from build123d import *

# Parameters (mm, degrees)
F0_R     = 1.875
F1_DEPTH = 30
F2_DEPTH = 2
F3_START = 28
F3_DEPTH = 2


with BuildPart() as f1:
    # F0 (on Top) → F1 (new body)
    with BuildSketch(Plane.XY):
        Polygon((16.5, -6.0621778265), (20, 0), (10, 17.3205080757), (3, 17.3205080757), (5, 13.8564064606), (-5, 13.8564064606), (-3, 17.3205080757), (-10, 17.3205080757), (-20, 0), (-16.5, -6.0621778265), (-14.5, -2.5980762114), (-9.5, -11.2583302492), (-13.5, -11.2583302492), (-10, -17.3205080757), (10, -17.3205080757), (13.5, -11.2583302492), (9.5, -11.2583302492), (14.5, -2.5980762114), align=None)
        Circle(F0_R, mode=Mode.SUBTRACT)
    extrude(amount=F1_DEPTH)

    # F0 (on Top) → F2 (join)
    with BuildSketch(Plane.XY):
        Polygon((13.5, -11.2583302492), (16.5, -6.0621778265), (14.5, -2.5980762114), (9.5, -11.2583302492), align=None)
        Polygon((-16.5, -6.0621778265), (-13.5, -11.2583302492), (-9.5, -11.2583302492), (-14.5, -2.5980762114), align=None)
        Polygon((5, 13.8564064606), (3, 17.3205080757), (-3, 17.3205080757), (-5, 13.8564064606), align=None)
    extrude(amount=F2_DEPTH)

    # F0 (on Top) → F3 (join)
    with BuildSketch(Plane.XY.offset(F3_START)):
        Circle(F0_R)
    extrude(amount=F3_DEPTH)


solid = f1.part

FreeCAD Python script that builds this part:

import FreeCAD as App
import Part
import Sketcher

V = App.Vector
Q = App.Units.Quantity

doc = App.newDocument("Part")
params = doc.addObject("Spreadsheet::Sheet", "Params")
for row, (alias, value) in enumerate([
    ("sketch1_diameter", "3.75 mm"),
    ("sketch1_width", "7 mm"),
    ("sketch1_width2", "10 mm"),
    ("sketch1_width3", "4 mm"),
    ("sketch1_length", "7 mm"),
    ("pad1_length", "30 mm"),
    ("sketch2_width", "4 mm"),
    ("sketch2_width2", "6 mm"),
    ("sketch2_length", "6 mm"),
    ("pad2_length", "2 mm"),
    ("sketch3_diameter", "3.75 mm"),
    ("pad3_length", "2 mm"),
], start=1):
    params.set(f"A{row}", alias)
    params.set(f"B{row}", "=" + value)
    params.setAlias(f"B{row}", alias)

body = doc.addObject("PartDesign::Body", "Body")

# Sketch on XY plane
sketch1 = doc.addObject("Sketcher::SketchObject", "Sketch")
body.addObject(sketch1)
sketch1.AttachmentSupport = (doc.XY_Plane, [""])
sketch1.MapMode = "FlatFace"
sketch1.addGeometry([
    Part.LineSegment(V(16.5, -6.1, 0), V(20, 0, 0)),  # 0
    Part.LineSegment(V(20, 0, 0), V(10, 17.3, 0)),  # 1
    Part.LineSegment(V(10, 17.3, 0), V(3, 17.3, 0)),  # 2
    Part.LineSegment(V(3, 17.3, 0), V(5, 13.9, 0)),  # 3
    Part.LineSegment(V(5, 13.9, 0), V(-5, 13.9, 0)),  # 4
    Part.LineSegment(V(-5, 13.9, 0), V(-3, 17.3, 0)),  # 5
    Part.LineSegment(V(-3, 17.3, 0), V(-10, 17.3, 0)),  # 6
    Part.LineSegment(V(-10, 17.3, 0), V(-20, 0, 0)),  # 7
    Part.LineSegment(V(-20, 0, 0), V(-16.5, -6.1, 0)),  # 8
    Part.LineSegment(V(-16.5, -6.1, 0), V(-14.5, -2.6, 0)),  # 9
    Part.LineSegment(V(-14.5, -2.6, 0), V(-9.5, -11.3, 0)),  # 10
    Part.LineSegment(V(-9.5, -11.3, 0), V(-13.5, -11.3, 0)),  # 11
    Part.LineSegment(V(-13.5, -11.3, 0), V(-10, -17.3, 0)),  # 12
    Part.LineSegment(V(-10, -17.3, 0), V(10, -17.3, 0)),  # 13
    Part.LineSegment(V(10, -17.3, 0), V(13.5, -11.3, 0)),  # 14
    Part.LineSegment(V(13.5, -11.3, 0), V(9.5, -11.3, 0)),  # 15
    Part.LineSegment(V(9.5, -11.3, 0), V(14.5, -2.6, 0)),  # 16
    Part.LineSegment(V(14.5, -2.6, 0), V(16.5, -6.1, 0)),  # 17
    Part.Circle(V(0, 0, 0), V(0, 0, 1), 1.9),  # 18
], False)
sketch1.addConstraint([
    Sketcher.Constraint("Coincident", 0, 2, 1, 1),
    Sketcher.Constraint("Coincident", 1, 2, 2, 1),
    Sketcher.Constraint("Coincident", 2, 2, 3, 1),
    Sketcher.Constraint("Coincident", 3, 2, 4, 1),
    Sketcher.Constraint("Coincident", 4, 2, 5, 1),
    Sketcher.Constraint("Coincident", 5, 2, 6, 1),
    Sketcher.Constraint("Coincident", 6, 2, 7, 1),
    Sketcher.Constraint("Coincident", 7, 2, 8, 1),
    Sketcher.Constraint("Coincident", 8, 2, 9, 1),
    Sketcher.Constraint("Coincident", 9, 2, 10, 1),
    Sketcher.Constraint("Coincident", 10, 2, 11, 1),
    Sketcher.Constraint("Coincident", 11, 2, 12, 1),
    Sketcher.Constraint("Coincident", 12, 2, 13, 1),
    Sketcher.Constraint("Coincident", 13, 2, 14, 1),
    Sketcher.Constraint("Coincident", 14, 2, 15, 1),
    Sketcher.Constraint("Coincident", 15, 2, 16, 1),
    Sketcher.Constraint("Coincident", 16, 2, 17, 1),
    Sketcher.Constraint("Coincident", 17, 2, 0, 1),
    Sketcher.Constraint("Horizontal", 2),
    Sketcher.Constraint("Horizontal", 4),
    Sketcher.Constraint("Horizontal", 6),
    Sketcher.Constraint("Horizontal", 11),
    Sketcher.Constraint("Horizontal", 13),
    Sketcher.Constraint("Horizontal", 15),
    Sketcher.Constraint("Coincident", 18, 3, -1, 1),
    Sketcher.Constraint("Symmetric", 0, 2, 7, 2, -1, 1),
    Sketcher.Constraint("Symmetric", 1, 2, 12, 2, -1, 1),
    Sketcher.Constraint("Symmetric", 6, 2, 13, 2, -1, 1),
    Sketcher.Constraint("Symmetric", 11, 2, 14, 2, -2),
    Sketcher.Constraint("Symmetric", 9, 2, 16, 2, -2),
    Sketcher.Constraint("Symmetric", 8, 2, 17, 2, -2),
    Sketcher.Constraint("PointOnObject", 0, 2, -1),
    Sketcher.Constraint("Parallel", 1, 3),
    Sketcher.Constraint("Parallel", 0, 5),
    Sketcher.Constraint("Parallel", 5, 7),
    Sketcher.Constraint("Parallel", 3, 8),
    Sketcher.Constraint("Parallel", 7, 9),
    Sketcher.Constraint("Parallel", 8, 10),
    Sketcher.Constraint("Parallel", 10, 12),
    Sketcher.Constraint("Parallel", 14, 16),
    Sketcher.Constraint("Equal", 2, 6),
    Sketcher.Constraint("Equal", 5, 9),
    Sketcher.Constraint("Equal", 8, 12),
    Sketcher.Constraint("Diameter", 18, Q("3.75 mm")),
    Sketcher.Constraint("DistanceX", 2, 2, 2, 1, Q("7 mm")),
    Sketcher.Constraint("DistanceX", 4, 2, 4, 1, Q("10 mm")),
    Sketcher.Constraint("DistanceX", 11, 2, 11, 1, Q("4 mm")),
    Sketcher.Constraint("Angle", 0, Q("60 deg")),
    Sketcher.Constraint("Distance", 0, Q("7 mm")),
    Sketcher.Constraint("Distance", 1, Q("20 mm")),
])
sketch1.setExpression("Constraints[43]", "Params.sketch1_diameter")
sketch1.setExpression("Constraints[44]", "Params.sketch1_width")
sketch1.setExpression("Constraints[45]", "Params.sketch1_width2")
sketch1.setExpression("Constraints[46]", "Params.sketch1_width3")
sketch1.setExpression("Constraints[48]", "Params.sketch1_length")
pad1 = doc.addObject("PartDesign::Pad", "Pad")
body.addObject(pad1)
pad1.Profile = sketch1
pad1.setExpression("Length", "Params.pad1_length")

# Sketch on XY plane
sketch2 = doc.addObject("Sketcher::SketchObject", "Sketch001")
body.addObject(sketch2)
sketch2.AttachmentSupport = (doc.XY_Plane, [""])
sketch2.MapMode = "FlatFace"
sketch2.addGeometry([
    Part.LineSegment(V(13.5, -11.3, 0), V(16.5, -6.1, 0)),  # 0
    Part.LineSegment(V(16.5, -6.1, 0), V(14.5, -2.6, 0)),  # 1
    Part.LineSegment(V(14.5, -2.6, 0), V(9.5, -11.3, 0)),  # 2
    Part.LineSegment(V(9.5, -11.3, 0), V(13.5, -11.3, 0)),  # 3
    Part.LineSegment(V(-16.5, -6.1, 0), V(-13.5, -11.3, 0)),  # 4
    Part.LineSegment(V(-13.5, -11.3, 0), V(-9.5, -11.3, 0)),  # 5
    Part.LineSegment(V(-9.5, -11.3, 0), V(-14.5, -2.6, 0)),  # 6
    Part.LineSegment(V(-14.5, -2.6, 0), V(-16.5, -6.1, 0)),  # 7
    Part.LineSegment(V(5, 13.9, 0), V(3, 17.3, 0)),  # 8
    Part.LineSegment(V(3, 17.3, 0), V(-3, 17.3, 0)),  # 9
    Part.LineSegment(V(-3, 17.3, 0), V(-5, 13.9, 0)),  # 10
    Part.LineSegment(V(-5, 13.9, 0), V(5, 13.9, 0)),  # 11
], False)
sketch2.addConstraint([
    Sketcher.Constraint("Coincident", 0, 2, 1, 1),
    Sketcher.Constraint("Coincident", 1, 2, 2, 1),
    Sketcher.Constraint("Coincident", 2, 2, 3, 1),
    Sketcher.Constraint("Coincident", 3, 2, 0, 1),
    Sketcher.Constraint("Coincident", 4, 2, 5, 1),
    Sketcher.Constraint("Coincident", 5, 2, 6, 1),
    Sketcher.Constraint("Coincident", 6, 2, 7, 1),
    Sketcher.Constraint("Coincident", 7, 2, 4, 1),
    Sketcher.Constraint("Coincident", 8, 2, 9, 1),
    Sketcher.Constraint("Coincident", 9, 2, 10, 1),
    Sketcher.Constraint("Coincident", 10, 2, 11, 1),
    Sketcher.Constraint("Coincident", 11, 2, 8, 1),
    Sketcher.Constraint("Horizontal", 3),
    Sketcher.Constraint("Horizontal", 5),
    Sketcher.Constraint("Horizontal", 9),
    Sketcher.Constraint("Horizontal", 11),
    Sketcher.Constraint("Symmetric", 3, 2, 4, 2, -2),
    Sketcher.Constraint("Symmetric", 1, 2, 6, 2, -2),
    Sketcher.Constraint("Symmetric", 0, 2, 7, 2, -2),
    Sketcher.Constraint("Parallel", 0, 2),
    Sketcher.Constraint("Parallel", 1, 4),
    Sketcher.Constraint("Parallel", 4, 6),
    Sketcher.Constraint("Parallel", 6, 8),
    Sketcher.Constraint("Parallel", 7, 10),
    Sketcher.Constraint("Equal", 7, 8),
    Sketcher.Constraint("DistanceX", 3, 1, 3, 2, Q("4 mm")),
    Sketcher.Constraint("DistanceX", 9, 2, 9, 1, Q("6 mm")),
    Sketcher.Constraint("Angle", 0, Q("60 deg")),
    Sketcher.Constraint("Distance", 0, Q("6 mm")),
    Sketcher.Constraint("DistanceX", -1, 1, 8, 2, Q("3 mm")),
    Sketcher.Constraint("DistanceX", 4, 2, 2, 2, Q("23 mm")),
    Sketcher.Constraint("DistanceY", 2, 2, -1, 1, Q("11.25833 mm")),
    Sketcher.Constraint("DistanceY", -1, 1, 8, 2, Q("17.320508 mm")),
])
sketch2.setExpression("Constraints[25]", "Params.sketch2_width")
sketch2.setExpression("Constraints[26]", "Params.sketch2_width2")
sketch2.setExpression("Constraints[28]", "Params.sketch2_length")
pad2 = doc.addObject("PartDesign::Pad", "Pad001")
body.addObject(pad2)
pad2.Profile = sketch2
pad2.setExpression("Length", "Params.pad2_length")

# Sketch on XY plane
sketch3 = doc.addObject("Sketcher::SketchObject", "Sketch002")
body.addObject(sketch3)
sketch3.AttachmentSupport = (doc.XY_Plane, [""])
sketch3.MapMode = "FlatFace"
sketch3.AttachmentOffset = App.Placement(V(0, 0, 28), App.Rotation())
sketch3.addGeometry(Part.Circle(V(0, 0, 0), V(0, 0, 1), 1.9), False)
sketch3.addConstraint([
    Sketcher.Constraint("Coincident", 0, 3, -1, 1),
    Sketcher.Constraint("Diameter", 0, Q("3.75 mm")),
])
sketch3.setExpression("Constraints[1]", "Params.sketch3_diameter")
pad3 = doc.addObject("PartDesign::Pad", "Pad002")
body.addObject(pad3)
pad3.Profile = sketch3
pad3.setExpression("Length", "Params.pad3_length")

doc.recompute()
